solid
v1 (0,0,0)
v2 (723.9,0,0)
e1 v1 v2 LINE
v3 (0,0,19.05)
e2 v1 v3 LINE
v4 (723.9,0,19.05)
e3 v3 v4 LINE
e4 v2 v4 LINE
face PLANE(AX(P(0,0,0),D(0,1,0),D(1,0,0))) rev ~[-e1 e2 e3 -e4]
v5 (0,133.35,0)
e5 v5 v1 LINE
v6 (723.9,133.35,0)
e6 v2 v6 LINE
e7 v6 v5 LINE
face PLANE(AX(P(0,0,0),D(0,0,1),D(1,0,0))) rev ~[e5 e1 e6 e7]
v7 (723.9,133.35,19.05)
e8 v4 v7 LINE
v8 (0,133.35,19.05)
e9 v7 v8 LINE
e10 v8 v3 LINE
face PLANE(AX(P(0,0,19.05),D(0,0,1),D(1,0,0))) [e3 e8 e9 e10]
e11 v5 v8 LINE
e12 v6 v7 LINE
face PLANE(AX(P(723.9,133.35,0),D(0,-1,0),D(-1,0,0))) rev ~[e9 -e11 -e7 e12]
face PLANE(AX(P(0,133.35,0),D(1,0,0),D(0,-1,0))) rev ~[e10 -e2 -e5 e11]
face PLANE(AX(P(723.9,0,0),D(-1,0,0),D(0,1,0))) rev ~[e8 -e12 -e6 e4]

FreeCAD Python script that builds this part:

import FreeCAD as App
import Part
import Sketcher
from FreeCAD import Vector
Q = App.Units.Quantity

doc = App.newDocument("Part")
body = doc.addObject("PartDesign::Body", "Body")

# Sketch on XY plane
sketch1 = doc.addObject("Sketcher::SketchObject", "Sketch")
body.addObject(sketch1)
sketch1.AttachmentSupport = (doc.XY_Plane, [""])
sketch1.MapMode = "FlatFace"
sketch1.addGeometry(Part.LineSegment(Vector(0, 133, 0), Vector(0, 0, 0)), False)
sketch1.addGeometry(Part.LineSegment(Vector(0, 0, 0), Vector(724, 0, 0)), False)
sketch1.addGeometry(Part.LineSegment(Vector(724, 0, 0), Vector(724, 133, 0)), False)
sketch1.addGeometry(Part.LineSegment(Vector(724, 133, 0), Vector(0, 133, 0)), False)
sketch1.addConstraint(Sketcher.Constraint("Coincident", 0, 2, 1, 1))
sketch1.addConstraint(Sketcher.Constraint("Coincident", 1, 2, 2, 1))
sketch1.addConstraint(Sketcher.Constraint("Coincident", 2, 2, 3, 1))
sketch1.addConstraint(Sketcher.Constraint("Coincident", 3, 2, 0, 1))
sketch1.addConstraint(Sketcher.Constraint("Vertical", 0))
sketch1.addConstraint(Sketcher.Constraint("Horizontal", 1))
sketch1.addConstraint(Sketcher.Constraint("Vertical", 2))
sketch1.addConstraint(Sketcher.Constraint("Horizontal", 3))
sketch1.addConstraint(Sketcher.Constraint("Coincident", 0, 2, -1, 1))
sketch1.addConstraint(Sketcher.Constraint("DistanceX", 1, 1, 1, 2, Q("28.5 in")))
sketch1.addConstraint(Sketcher.Constraint("DistanceY", 0, 2, 0, 1, Q("5.25 in")))
pad1 = doc.addObject("PartDesign::Pad", "Pad")
body.addObject(pad1)
pad1.Profile = sketch1
pad1.Length = Q("0.75 in")

doc.recompute()
